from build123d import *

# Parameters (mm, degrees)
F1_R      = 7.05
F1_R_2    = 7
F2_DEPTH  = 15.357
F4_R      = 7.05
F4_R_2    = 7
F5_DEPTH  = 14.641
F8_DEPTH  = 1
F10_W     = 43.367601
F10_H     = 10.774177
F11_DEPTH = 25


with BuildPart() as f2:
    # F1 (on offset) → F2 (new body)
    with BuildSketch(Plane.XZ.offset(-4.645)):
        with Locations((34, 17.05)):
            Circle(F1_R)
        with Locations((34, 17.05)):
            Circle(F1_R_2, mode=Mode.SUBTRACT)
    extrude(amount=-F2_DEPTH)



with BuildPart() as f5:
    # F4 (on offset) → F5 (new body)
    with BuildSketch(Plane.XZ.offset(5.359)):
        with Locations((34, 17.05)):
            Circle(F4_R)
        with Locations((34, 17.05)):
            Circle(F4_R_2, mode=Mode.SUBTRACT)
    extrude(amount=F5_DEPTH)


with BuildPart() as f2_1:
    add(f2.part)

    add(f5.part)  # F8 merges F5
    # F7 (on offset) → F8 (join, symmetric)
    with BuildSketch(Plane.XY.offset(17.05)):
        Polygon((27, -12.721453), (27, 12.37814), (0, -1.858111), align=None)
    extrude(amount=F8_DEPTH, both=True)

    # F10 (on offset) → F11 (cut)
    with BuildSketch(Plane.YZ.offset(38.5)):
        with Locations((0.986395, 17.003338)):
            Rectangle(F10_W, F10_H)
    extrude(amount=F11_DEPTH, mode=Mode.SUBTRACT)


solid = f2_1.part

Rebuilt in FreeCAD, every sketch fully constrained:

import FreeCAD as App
import Part
import Sketcher
from FreeCAD import Vector


def add_polygon(sketch, points):
    """Adds a closed chain of lines whose ends are joined by coincident constraints."""
    first, n = sketch.GeometryCount, len(points)
    for a, b in zip(points, points[1:] + points[:1]):
        sketch.addGeometry(Part.LineSegment(App.Vector(*a, 0), App.Vector(*b, 0)), False)
    for i in range(n):
        sketch.addConstraint(Sketcher.Constraint("Coincident", first + i, 2, first + (i + 1) % n, 1))

doc = App.newDocument("Part")
body = doc.addObject("PartDesign::Body", "Body")

sketch1 = body.newObject("Sketcher::SketchObject", "Sketch")
sketch1.AttachmentSupport = (doc.getObject("XZ_Plane"), [""])
sketch1.MapMode = "FlatFace"
sketch1.AttachmentOffset = App.Placement(Vector(0, 0, -4.645), App.Rotation())
sketch1.addGeometry([
    Part.Circle(Vector(34, 17.05, 0), Vector(0, 0, 1), 7.05),
    Part.Circle(Vector(34, 17.05, 0), Vector(0, 0, 1), 7),
], False)
sketch1.addConstraint([
    Sketcher.Constraint("Coincident", 1, 3, 0, 3),
    Sketcher.Constraint("Diameter", 1, 14.0),
    Sketcher.Constraint("Diameter", 0, 14.1),
    Sketcher.Constraint("DistanceX", -1, 1, 0, 3, 34.0),
    Sketcher.Constraint("DistanceY", -1, 1, 0, 3, 17.05),
])
pad1 = body.newObject("PartDesign::Pad", "Pad")
pad1.Profile = sketch1
pad1.Length = 15.357
pad1.Reversed = True
body2 = doc.addObject("PartDesign::Body", "Body001")

sketch2 = body2.newObject("Sketcher::SketchObject", "Sketch001")
sketch2.AttachmentSupport = (doc.getObject("XZ_Plane001"), [""])
sketch2.MapMode = "FlatFace"
sketch2.AttachmentOffset = App.Placement(Vector(0, 0, 5.359), App.Rotation())
sketch2.addGeometry([
    Part.Circle(Vector(34, 17.05, 0), Vector(0, 0, 1), 7.05),
    Part.Circle(Vector(34, 17.05, 0), Vector(0, 0, 1), 7),
], False)
sketch2.addConstraint([
    Sketcher.Constraint("Coincident", 1, 3, 0, 3),
    Sketcher.Constraint("Diameter", 1, 14.0),
    Sketcher.Constraint("Diameter", 0, 14.1),
    Sketcher.Constraint("DistanceX", -1, 1, 0, 3, 34.0),
    Sketcher.Constraint("DistanceY", -1, 1, 0, 3, 17.05),
])
pad2 = body2.newObject("PartDesign::Pad", "Pad001")
pad2.Profile = sketch2
pad2.Length = 14.641
body.AllowCompound = True
doc.recompute()

boolean = body.newObject("PartDesign::Boolean", "Boolean")
boolean.Type = "Fuse"
boolean.addObjects([body2])

sketch3 = body.newObject("Sketcher::SketchObject", "Sketch002")
sketch3.AttachmentSupport = (doc.getObject("XY_Plane"), [""])
sketch3.MapMode = "FlatFace"
sketch3.AttachmentOffset = App.Placement(Vector(0, 0, 17.05), App.Rotation())
add_polygon(sketch3, [(27, -12.721453), (27, 12.37814), (0, -1.858111)])
sketch3.addConstraint([
    Sketcher.Constraint("Vertical", 0),
    Sketcher.Constraint("PointOnObject", 1, 2, -2),
    Sketcher.Constraint("DistanceX", -1, 1, 0, 2, 27.0),
    Sketcher.Constraint("DistanceY", 0, 1, 0, 2, 25.099593),
    Sketcher.Constraint("DistanceY", -1, 1, 0, 2, 12.37814),
    Sketcher.Constraint("DistanceY", 1, 2, -1, 1, 1.858111),
])
pad3 = body.newObject("PartDesign::Pad", "Pad002")
pad3.Profile = sketch3
pad3.Length = 2
pad3.Midplane = True

sketch4 = body.newObject("Sketcher::SketchObject", "Sketch003")
sketch4.AttachmentSupport = (doc.getObject("YZ_Plane"), [""])
sketch4.MapMode = "FlatFace"
sketch4.AttachmentOffset = App.Placement(Vector(0, 0, 38.5), App.Rotation())
add_polygon(sketch4, [(-20.697405, 22.390427), (-20.697405, 11.61625), (22.670195, 11.61625), (22.670195, 22.390427)])
sketch4.addConstraint([
    Sketcher.Constraint("Vertical", 0),
    Sketcher.Constraint("Horizontal", 1),
    Sketcher.Constraint("Vertical", 2),
    Sketcher.Constraint("Horizontal", 3),
    Sketcher.Constraint("DistanceX", 1, 1, 1, 2, 43.367601),
    Sketcher.Constraint("DistanceY", 0, 2, 0, 1, 10.774177),
    Sketcher.Constraint("DistanceY", -1, 1, 0, 2, 11.61625),
    Sketcher.Constraint("DistanceX", 0, 2, -1, 1, 20.697405),
])
pocket1 = body.newObject("PartDesign::Pocket", "Pocket")
pocket1.Profile = sketch4
pocket1.Length = 25
pocket1.Reversed = True

doc.recompute()
